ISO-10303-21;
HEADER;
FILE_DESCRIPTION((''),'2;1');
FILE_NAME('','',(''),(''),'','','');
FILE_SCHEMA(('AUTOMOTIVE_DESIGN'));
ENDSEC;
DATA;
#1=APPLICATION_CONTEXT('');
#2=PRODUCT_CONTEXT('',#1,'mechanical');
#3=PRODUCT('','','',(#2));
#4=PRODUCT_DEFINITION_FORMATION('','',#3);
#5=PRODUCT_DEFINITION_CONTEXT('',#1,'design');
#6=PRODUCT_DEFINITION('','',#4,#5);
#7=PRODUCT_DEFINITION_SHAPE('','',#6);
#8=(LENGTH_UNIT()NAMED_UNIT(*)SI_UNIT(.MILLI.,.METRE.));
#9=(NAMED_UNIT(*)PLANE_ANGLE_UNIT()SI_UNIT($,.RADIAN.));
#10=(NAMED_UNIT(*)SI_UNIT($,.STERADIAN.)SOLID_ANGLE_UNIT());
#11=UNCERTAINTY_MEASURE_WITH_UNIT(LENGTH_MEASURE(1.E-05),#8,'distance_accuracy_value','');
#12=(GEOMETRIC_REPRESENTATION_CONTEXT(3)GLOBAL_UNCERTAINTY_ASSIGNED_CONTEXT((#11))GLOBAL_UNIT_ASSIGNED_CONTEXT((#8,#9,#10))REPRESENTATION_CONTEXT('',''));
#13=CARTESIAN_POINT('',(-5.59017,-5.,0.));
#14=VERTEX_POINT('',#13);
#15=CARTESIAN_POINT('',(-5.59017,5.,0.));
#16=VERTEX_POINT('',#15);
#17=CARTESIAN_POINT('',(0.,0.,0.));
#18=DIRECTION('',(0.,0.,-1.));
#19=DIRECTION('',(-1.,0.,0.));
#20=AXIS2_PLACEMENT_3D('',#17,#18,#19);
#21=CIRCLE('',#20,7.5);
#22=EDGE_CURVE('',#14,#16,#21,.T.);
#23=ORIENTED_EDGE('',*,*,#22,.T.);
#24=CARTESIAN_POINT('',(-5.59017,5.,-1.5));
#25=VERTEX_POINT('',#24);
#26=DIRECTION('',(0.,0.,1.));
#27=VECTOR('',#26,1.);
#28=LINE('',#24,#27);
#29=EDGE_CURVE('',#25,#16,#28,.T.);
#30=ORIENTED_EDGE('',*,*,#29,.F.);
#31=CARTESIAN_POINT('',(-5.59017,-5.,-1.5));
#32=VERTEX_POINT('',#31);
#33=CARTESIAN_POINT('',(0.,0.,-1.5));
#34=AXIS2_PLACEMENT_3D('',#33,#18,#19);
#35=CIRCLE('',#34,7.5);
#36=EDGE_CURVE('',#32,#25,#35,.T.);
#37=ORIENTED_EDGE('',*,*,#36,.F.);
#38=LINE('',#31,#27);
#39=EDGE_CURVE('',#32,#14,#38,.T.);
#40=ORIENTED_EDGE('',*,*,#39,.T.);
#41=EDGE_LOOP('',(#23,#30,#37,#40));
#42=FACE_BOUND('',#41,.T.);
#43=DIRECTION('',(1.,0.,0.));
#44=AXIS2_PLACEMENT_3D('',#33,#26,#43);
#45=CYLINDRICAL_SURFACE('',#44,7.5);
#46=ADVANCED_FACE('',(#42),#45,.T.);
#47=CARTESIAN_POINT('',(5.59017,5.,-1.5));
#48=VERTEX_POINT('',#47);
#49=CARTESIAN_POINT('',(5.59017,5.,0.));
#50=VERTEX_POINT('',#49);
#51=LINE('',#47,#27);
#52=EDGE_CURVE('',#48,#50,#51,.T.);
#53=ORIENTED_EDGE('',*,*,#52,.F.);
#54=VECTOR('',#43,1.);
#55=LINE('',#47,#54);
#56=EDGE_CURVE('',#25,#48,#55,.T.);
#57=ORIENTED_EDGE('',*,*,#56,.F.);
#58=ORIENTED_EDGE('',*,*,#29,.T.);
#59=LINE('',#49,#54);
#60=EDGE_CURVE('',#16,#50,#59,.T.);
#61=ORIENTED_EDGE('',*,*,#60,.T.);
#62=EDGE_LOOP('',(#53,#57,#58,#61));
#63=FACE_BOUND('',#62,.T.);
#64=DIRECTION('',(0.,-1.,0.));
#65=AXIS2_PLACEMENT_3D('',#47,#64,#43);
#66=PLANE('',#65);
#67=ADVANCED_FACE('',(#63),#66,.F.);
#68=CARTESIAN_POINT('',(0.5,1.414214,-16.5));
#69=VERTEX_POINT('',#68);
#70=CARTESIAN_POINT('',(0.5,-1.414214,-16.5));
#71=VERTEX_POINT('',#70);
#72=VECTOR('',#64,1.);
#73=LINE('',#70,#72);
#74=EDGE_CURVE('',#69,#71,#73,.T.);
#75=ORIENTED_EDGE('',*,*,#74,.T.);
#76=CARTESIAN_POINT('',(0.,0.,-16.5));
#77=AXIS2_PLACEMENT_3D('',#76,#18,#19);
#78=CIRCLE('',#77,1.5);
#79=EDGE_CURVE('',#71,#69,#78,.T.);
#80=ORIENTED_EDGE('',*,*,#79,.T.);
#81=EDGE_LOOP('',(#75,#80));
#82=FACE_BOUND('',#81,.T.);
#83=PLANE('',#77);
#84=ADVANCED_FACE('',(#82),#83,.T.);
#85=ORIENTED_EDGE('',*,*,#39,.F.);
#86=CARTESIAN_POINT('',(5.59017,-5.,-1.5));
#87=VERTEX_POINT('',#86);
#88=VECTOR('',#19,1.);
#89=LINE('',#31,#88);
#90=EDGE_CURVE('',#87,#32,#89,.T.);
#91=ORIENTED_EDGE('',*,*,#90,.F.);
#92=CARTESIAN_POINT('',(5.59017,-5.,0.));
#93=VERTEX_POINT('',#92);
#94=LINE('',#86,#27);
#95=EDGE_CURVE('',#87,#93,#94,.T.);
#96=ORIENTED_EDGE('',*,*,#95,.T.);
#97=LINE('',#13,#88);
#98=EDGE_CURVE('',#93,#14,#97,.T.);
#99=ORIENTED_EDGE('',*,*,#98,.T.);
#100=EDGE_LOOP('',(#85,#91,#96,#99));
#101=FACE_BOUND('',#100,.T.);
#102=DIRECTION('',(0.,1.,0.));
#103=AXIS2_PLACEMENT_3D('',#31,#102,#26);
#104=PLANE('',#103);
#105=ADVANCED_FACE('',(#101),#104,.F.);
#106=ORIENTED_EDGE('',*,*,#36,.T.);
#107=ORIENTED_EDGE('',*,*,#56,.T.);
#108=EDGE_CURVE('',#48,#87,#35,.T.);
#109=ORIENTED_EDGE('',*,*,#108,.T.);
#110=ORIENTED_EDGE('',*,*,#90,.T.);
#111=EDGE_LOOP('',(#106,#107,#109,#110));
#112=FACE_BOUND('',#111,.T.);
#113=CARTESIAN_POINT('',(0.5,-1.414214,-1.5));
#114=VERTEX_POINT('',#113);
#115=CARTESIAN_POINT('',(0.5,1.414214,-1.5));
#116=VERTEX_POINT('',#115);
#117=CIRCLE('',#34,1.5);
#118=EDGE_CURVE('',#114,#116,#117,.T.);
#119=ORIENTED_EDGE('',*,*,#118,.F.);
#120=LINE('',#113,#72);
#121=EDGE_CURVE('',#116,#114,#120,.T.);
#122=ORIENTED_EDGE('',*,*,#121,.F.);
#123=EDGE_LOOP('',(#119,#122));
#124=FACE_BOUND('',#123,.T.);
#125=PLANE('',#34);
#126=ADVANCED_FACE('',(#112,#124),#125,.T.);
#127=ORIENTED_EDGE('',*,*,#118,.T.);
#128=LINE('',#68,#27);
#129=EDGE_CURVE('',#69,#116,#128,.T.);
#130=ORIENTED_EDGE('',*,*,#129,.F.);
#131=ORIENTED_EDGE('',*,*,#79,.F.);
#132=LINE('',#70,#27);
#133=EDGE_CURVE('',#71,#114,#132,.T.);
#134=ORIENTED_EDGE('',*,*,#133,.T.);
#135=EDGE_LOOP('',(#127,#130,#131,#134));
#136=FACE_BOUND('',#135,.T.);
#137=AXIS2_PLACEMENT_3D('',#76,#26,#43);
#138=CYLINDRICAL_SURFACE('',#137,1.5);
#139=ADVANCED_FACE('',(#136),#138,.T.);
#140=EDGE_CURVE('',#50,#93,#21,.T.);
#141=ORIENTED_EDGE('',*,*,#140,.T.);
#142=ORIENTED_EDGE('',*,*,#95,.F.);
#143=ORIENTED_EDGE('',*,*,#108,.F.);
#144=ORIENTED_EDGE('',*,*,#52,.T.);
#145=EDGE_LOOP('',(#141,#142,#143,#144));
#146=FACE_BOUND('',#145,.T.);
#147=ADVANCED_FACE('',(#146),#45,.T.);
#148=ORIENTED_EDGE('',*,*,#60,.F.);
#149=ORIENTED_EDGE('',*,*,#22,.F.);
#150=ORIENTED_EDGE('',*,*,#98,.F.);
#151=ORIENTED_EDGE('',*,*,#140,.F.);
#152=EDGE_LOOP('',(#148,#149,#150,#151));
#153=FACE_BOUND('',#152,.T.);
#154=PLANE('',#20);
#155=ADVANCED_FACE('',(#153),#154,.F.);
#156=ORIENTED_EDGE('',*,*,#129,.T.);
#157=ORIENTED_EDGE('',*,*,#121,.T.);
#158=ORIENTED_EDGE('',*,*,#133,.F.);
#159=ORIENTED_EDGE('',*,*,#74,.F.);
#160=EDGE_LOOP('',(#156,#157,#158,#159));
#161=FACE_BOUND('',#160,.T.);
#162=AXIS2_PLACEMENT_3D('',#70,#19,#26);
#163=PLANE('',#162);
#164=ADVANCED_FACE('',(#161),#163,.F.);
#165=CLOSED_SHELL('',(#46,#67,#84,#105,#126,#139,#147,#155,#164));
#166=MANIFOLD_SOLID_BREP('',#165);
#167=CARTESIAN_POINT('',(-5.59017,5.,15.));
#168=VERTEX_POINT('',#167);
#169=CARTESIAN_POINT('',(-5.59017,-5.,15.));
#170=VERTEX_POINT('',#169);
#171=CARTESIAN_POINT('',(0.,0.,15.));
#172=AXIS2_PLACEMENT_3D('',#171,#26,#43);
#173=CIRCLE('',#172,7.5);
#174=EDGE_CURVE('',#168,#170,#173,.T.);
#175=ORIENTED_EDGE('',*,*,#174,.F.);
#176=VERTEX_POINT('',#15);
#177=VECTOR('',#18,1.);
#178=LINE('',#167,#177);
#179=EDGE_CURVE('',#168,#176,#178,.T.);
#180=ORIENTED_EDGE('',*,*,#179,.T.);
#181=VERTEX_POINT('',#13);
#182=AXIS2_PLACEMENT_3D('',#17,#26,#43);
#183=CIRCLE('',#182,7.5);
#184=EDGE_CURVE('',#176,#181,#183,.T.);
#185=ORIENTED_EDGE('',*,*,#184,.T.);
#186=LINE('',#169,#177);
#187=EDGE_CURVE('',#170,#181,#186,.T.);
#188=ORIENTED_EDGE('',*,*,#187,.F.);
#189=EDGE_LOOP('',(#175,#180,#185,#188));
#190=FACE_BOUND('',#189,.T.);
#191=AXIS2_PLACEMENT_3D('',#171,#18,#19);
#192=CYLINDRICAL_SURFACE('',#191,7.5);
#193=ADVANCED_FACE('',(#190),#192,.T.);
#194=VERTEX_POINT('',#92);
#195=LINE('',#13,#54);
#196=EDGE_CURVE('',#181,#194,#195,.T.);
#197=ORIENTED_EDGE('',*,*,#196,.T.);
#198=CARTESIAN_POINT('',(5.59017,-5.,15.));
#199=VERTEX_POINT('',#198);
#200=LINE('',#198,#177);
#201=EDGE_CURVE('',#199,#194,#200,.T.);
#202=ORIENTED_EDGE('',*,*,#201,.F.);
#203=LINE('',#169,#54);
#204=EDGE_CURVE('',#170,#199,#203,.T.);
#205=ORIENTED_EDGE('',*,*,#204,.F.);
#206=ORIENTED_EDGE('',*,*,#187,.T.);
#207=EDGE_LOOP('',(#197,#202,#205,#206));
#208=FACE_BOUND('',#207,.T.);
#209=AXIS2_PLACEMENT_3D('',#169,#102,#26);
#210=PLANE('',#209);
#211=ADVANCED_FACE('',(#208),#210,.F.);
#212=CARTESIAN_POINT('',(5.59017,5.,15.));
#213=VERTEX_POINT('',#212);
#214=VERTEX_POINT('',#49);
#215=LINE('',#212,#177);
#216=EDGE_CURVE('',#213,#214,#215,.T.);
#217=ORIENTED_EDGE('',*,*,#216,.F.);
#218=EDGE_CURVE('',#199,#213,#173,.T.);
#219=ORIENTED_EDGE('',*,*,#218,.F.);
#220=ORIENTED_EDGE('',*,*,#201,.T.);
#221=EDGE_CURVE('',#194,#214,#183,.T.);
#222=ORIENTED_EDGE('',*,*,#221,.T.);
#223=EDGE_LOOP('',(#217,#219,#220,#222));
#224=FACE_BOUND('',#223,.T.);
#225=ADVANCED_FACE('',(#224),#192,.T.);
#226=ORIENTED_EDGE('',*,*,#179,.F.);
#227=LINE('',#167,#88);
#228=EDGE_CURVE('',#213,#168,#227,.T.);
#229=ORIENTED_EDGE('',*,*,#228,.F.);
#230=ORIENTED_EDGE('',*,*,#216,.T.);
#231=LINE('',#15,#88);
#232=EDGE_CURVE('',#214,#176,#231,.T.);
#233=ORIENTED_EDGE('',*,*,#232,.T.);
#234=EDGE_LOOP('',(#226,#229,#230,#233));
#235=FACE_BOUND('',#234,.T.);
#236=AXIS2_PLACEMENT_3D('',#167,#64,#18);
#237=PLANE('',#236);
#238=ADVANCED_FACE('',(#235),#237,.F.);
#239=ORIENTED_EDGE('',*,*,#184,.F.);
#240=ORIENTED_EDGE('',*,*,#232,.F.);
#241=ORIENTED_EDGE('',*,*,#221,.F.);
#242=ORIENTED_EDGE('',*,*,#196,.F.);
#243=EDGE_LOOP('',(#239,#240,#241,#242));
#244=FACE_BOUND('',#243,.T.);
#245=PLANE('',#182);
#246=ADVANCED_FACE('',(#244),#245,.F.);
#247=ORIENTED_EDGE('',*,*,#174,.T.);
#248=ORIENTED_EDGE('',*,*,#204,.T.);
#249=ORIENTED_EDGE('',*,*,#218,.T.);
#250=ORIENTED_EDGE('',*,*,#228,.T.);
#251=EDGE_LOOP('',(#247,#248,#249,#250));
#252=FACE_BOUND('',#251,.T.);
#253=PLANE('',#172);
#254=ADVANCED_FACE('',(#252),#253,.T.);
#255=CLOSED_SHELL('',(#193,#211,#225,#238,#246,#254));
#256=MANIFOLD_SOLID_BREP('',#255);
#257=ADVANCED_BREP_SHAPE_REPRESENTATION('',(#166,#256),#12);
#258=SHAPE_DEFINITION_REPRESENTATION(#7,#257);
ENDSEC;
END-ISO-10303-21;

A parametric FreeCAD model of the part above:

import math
import FreeCAD as App
import Part
import Sketcher

doc = App.newDocument("Part")
body = doc.addObject("PartDesign::Body", "Body")

# Sketch on XY plane
sketch1 = body.newObject("Sketcher::SketchObject", "Sketch")
sketch1.AttachmentSupport = (doc.getObject("XY_Plane"), [""])
sketch1.MapMode = "FlatFace"
sketch1.addGeometry(Part.LineSegment(App.Vector(-6, -5, 0), App.Vector(6, -5, 0)), False)
sketch1.addGeometry(Part.ArcOfCircle(Part.Circle(App.Vector(0, 0, 0), App.Vector(0, 0, 1), 8), math.radians(-42), math.radians(42)), False)
sketch1.addGeometry(Part.LineSegment(App.Vector(6, 5, 0), App.Vector(-6, 5, 0)), False)
sketch1.addGeometry(Part.ArcOfCircle(Part.Circle(App.Vector(0, 0, 0), App.Vector(0, 0, 1), 8), math.radians(138), math.radians(222)), False)
sketch1.addConstraint(Sketcher.Constraint("Coincident", 0, 2, 1, 1))
sketch1.addConstraint(Sketcher.Constraint("Coincident", 1, 2, 2, 1))
sketch1.addConstraint(Sketcher.Constraint("Coincident", 2, 2, 3, 1))
sketch1.addConstraint(Sketcher.Constraint("Coincident", 3, 2, 0, 1))
sketch1.addConstraint(Sketcher.Constraint("Horizontal", 0))
sketch1.addConstraint(Sketcher.Constraint("Horizontal", 2))
sketch1.addConstraint(Sketcher.Constraint("Coincident", 1, 3, -1, 1))
sketch1.addConstraint(Sketcher.Constraint("Coincident", 3, 3, -1, 1))
sketch1.addConstraint(Sketcher.Constraint("Equal", 1, 3))
sketch1.addConstraint(Sketcher.Constraint("Vertical", 0, 2, 1, 2))
sketch1.addConstraint(Sketcher.Constraint("Radius", 1, 7.5))
sketch1.addConstraint(Sketcher.Constraint("DistanceY", 0, 2, -1, 1, 5.0))
pad1 = body.newObject("PartDesign::Pad", "Pad")
pad1.Profile = sketch1
pad1.Length = 15
body2 = doc.addObject("PartDesign::Body", "Body001")

# Sketch on XY plane
sketch2 = body2.newObject("Sketcher::SketchObject", "Sketch001")
sketch2.AttachmentSupport = (doc.getObject("XY_Plane001"), [""])
sketch2.MapMode = "FlatFace"
sketch2.addGeometry(Part.LineSegment(App.Vector(6, -5, 0), App.Vector(-6, -5, 0)), False)
sketch2.addGeometry(Part.ArcOfCircle(Part.Circle(App.Vector(0, 0, 0), App.Vector(0, 0, 1), 8), math.radians(138), math.radians(222)), False)
sketch2.addGeometry(Part.LineSegment(App.Vector(-6, 5, 0), App.Vector(6, 5, 0)), False)
sketch2.addGeometry(Part.ArcOfCircle(Part.Circle(App.Vector(0, 0, 0), App.Vector(0, 0, 1), 8), math.radians(-42), math.radians(42)), False)
sketch2.addConstraint(Sketcher.Constraint("Coincident", 0, 2, 1, 2))
sketch2.addConstraint(Sketcher.Constraint("Coincident", 1, 1, 2, 1))
sketch2.addConstraint(Sketcher.Constraint("Coincident", 2, 2, 3, 2))
sketch2.addConstraint(Sketcher.Constraint("Coincident", 3, 1, 0, 1))
sketch2.addConstraint(Sketcher.Constraint("Horizontal", 0))
sketch2.addConstraint(Sketcher.Constraint("Horizontal", 2))
sketch2.addConstraint(Sketcher.Constraint("Coincident", 1, 3, -1, 1))
sketch2.addConstraint(Sketcher.Constraint("Coincident", 3, 3, -1, 1))
sketch2.addConstraint(Sketcher.Constraint("Equal", 1, 3))
sketch2.addConstraint(Sketcher.Constraint("Vertical", 0, 2, 1, 1))
sketch2.addConstraint(Sketcher.Constraint("Radius", 1, 7.5))
sketch2.addConstraint(Sketcher.Constraint("DistanceY", 0, 2, -1, 1, 5.0))
pad2 = body2.newObject("PartDesign::Pad", "Pad001")
pad2.Profile = sketch2
pad2.Length = 1.5
pad2.Reversed = True

# Sketch on XY plane
sketch3 = body2.newObject("Sketcher::SketchObject", "Sketch002")
sketch3.AttachmentSupport = (doc.getObject("XY_Plane001"), [""])
sketch3.MapMode = "FlatFace"
sketch3.AttachmentOffset = App.Placement(App.Vector(0, 0, -1.5), App.Rotation())
sketch3.addGeometry(Part.LineSegment(App.Vector(0.5, 1.4, 0), App.Vector(0.5, -1.4, 0)), False)
sketch3.addGeometry(Part.ArcOfCircle(Part.Circle(App.Vector(0, 0, 0), App.Vector(0, 0, 1), 1.5), math.radians(71), math.radians(289)), False)
sketch3.addConstraint(Sketcher.Constraint("Coincident", 0, 1, 1, 1))
sketch3.addConstraint(Sketcher.Constraint("Coincident", 1, 2, 0, 2))
sketch3.addConstraint(Sketcher.Constraint("Vertical", 0))
sketch3.addConstraint(Sketcher.Constraint("Coincident", 1, 3, -1, 1))
sketch3.addConstraint(Sketcher.Constraint("Radius", 1, 1.5))
sketch3.addConstraint(Sketcher.Constraint("DistanceX", -1, 1, 0, 1, 0.5))
pad3 = body2.newObject("PartDesign::Pad", "Pad002")
pad3.Profile = sketch3
pad3.Length = 15
pad3.Reversed = True

doc.recompute()
